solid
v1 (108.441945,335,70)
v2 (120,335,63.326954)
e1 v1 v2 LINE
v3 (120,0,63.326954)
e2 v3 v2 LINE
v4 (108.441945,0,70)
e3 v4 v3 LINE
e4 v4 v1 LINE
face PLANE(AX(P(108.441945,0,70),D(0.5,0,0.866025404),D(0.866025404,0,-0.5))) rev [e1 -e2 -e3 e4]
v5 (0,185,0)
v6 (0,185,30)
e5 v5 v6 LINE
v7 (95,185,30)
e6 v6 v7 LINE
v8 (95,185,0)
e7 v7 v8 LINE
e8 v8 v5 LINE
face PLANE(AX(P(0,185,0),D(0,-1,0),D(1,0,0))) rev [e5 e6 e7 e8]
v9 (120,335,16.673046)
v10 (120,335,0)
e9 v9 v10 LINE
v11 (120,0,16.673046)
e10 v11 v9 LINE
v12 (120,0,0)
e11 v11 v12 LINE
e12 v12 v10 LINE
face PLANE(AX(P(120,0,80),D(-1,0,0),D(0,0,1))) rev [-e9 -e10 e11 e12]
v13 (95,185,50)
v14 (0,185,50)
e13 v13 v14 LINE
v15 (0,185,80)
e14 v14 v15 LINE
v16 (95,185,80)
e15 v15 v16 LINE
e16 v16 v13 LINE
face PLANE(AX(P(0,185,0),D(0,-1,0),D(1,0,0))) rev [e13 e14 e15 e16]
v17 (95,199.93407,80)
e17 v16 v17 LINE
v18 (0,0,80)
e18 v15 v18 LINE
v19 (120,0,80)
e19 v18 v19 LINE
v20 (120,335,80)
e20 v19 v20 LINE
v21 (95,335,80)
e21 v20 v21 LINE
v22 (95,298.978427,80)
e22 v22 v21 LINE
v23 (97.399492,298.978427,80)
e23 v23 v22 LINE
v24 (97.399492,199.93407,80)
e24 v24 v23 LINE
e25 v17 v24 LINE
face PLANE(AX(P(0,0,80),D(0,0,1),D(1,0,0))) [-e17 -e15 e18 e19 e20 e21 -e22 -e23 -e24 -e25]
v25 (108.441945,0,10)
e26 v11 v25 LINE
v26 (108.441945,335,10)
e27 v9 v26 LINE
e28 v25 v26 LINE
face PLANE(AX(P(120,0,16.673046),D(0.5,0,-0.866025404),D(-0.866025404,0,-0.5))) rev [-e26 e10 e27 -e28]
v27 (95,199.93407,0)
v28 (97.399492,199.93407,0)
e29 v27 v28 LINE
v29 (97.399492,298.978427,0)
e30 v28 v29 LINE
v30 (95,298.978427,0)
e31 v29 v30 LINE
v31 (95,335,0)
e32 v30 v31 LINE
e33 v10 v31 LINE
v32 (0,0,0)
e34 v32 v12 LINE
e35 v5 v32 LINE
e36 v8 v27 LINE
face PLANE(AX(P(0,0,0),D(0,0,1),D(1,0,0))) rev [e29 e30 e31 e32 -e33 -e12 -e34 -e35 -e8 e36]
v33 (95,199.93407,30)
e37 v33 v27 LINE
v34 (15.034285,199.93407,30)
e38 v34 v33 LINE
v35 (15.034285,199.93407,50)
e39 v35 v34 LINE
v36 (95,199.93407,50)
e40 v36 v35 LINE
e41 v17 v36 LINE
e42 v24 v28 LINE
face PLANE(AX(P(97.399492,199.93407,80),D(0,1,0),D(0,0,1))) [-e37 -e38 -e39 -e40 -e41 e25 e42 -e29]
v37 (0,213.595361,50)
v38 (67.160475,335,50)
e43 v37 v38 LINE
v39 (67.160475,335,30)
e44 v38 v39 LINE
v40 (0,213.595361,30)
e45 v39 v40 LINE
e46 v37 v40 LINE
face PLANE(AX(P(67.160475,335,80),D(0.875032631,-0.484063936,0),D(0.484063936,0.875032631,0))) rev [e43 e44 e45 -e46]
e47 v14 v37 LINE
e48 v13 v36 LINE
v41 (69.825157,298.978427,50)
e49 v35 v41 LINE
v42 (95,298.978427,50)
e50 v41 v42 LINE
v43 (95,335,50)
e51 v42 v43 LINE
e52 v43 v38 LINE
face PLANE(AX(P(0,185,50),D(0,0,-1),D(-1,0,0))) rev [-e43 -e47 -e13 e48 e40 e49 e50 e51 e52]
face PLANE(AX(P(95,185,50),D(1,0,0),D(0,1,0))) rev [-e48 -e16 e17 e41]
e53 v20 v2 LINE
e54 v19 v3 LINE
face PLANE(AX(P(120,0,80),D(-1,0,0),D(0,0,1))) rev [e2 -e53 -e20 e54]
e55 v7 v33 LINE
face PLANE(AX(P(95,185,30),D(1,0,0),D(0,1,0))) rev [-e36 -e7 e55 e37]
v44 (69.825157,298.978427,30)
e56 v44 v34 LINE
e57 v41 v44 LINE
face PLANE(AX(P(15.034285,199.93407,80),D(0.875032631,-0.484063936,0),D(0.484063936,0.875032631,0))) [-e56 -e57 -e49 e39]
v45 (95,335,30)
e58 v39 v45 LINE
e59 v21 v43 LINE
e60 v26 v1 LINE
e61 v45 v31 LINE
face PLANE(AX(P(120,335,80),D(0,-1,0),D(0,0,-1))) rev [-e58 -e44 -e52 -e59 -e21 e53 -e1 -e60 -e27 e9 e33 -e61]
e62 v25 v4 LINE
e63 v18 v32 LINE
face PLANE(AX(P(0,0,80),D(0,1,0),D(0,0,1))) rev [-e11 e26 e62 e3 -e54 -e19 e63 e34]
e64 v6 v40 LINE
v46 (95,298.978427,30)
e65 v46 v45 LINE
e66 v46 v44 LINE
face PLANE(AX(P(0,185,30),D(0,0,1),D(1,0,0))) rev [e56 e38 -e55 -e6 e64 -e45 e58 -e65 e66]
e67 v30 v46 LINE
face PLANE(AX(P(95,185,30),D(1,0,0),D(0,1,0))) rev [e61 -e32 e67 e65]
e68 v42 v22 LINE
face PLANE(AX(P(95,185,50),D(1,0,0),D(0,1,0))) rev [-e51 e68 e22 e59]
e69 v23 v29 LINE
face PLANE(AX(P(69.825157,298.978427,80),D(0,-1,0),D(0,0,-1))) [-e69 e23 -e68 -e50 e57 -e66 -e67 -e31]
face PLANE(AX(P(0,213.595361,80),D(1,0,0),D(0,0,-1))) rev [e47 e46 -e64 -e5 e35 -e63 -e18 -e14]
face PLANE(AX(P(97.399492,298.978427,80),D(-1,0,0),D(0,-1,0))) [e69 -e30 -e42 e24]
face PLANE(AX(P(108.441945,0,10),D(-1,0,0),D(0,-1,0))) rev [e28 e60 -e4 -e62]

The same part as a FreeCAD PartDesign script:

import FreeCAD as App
import Part
import Sketcher

V = App.Vector
Q = App.Units.Quantity

doc = App.newDocument("Part")
body = doc.addObject("PartDesign::Body", "Body")

# Sketch on XY plane
sketch1 = body.newObject("Sketcher::SketchObject", "Sketch")
sketch1.AttachmentSupport = (doc.getObject("XY_Plane"), [""])
sketch1.MapMode = "FlatFace"
sketch1.addGeometry([
    Part.LineSegment(V(0, 0, 0), V(120, 0, 0)),  # 0
    Part.LineSegment(V(120, 0, 0), V(120, 335, 0)),  # 1
    Part.LineSegment(V(120, 335, 0), V(67.160475, 335, 0)),  # 2
    Part.LineSegment(V(67.160475, 335, 0), V(0, 213.595361, 0)),  # 3
    Part.LineSegment(V(0, 213.595361, 0), V(0, 0, 0)),  # 4
    Part.LineSegment(V(97.399492, 199.93407, 0), V(15.034285, 199.93407, 0)),  # 5
    Part.LineSegment(V(15.034285, 199.93407, 0), V(69.825157, 298.978427, 0)),  # 6
    Part.LineSegment(V(69.825157, 298.978427, 0), V(97.399492, 298.978427, 0)),  # 7
    Part.LineSegment(V(97.399492, 298.978427, 0), V(97.399492, 199.93407, 0)),  # 8
], False)
sketch1.addConstraint([
    Sketcher.Constraint("Coincident", 0, 2, 1, 1),
    Sketcher.Constraint("Coincident", 1, 2, 2, 1),
    Sketcher.Constraint("Coincident", 2, 2, 3, 1),
    Sketcher.Constraint("Coincident", 3, 2, 4, 1),
    Sketcher.Constraint("Coincident", 4, 2, 0, 1),
    Sketcher.Constraint("Coincident", 5, 2, 6, 1),
    Sketcher.Constraint("Coincident", 6, 2, 7, 1),
    Sketcher.Constraint("Coincident", 7, 2, 8, 1),
    Sketcher.Constraint("Coincident", 8, 2, 5, 1),
    Sketcher.Constraint("Horizontal", 0),
    Sketcher.Constraint("Vertical", 1),
    Sketcher.Constraint("Horizontal", 2),
    Sketcher.Constraint("Vertical", 4),
    Sketcher.Constraint("Horizontal", 5),
    Sketcher.Constraint("Horizontal", 7),
    Sketcher.Constraint("Vertical", 8),
    Sketcher.Constraint("Coincident", 4, 2, -1, 1),
    Sketcher.Constraint("Parallel", 3, 6),
    Sketcher.Constraint("DistanceX", 0, 1, 0, 2, Q("120 mm")),
    Sketcher.Constraint("DistanceY", 1, 1, 1, 2, Q("335 mm")),
    Sketcher.Constraint("DistanceY", 4, 2, 4, 1, Q("213.595361 mm")),
    Sketcher.Constraint("Distance", 6, Q("113.18933 mm")),
    Sketcher.Constraint("DistanceX", 2, 2, 2, 1, Q("52.839525 mm")),
    Sketcher.Constraint("DistanceX", 5, 2, 5, 1, Q("82.365207 mm")),
    Sketcher.Constraint("DistanceY", -1, 1, 5, 2, Q("199.93407 mm")),
    Sketcher.Constraint("DistanceX", -1, 1, 7, 2, Q("97.399492 mm")),
])
pad1 = body.newObject("PartDesign::Pad", "Pad")
pad1.Profile = sketch1
pad1.Length = 80

# Sketch on XZ plane
sketch2 = body.newObject("Sketcher::SketchObject", "Sketch001")
sketch2.AttachmentSupport = (doc.getObject("XZ_Plane"), [""])
sketch2.MapMode = "FlatFace"
sketch2.AttachmentOffset = App.Placement(V(0, 0, -335), App.Rotation())
sketch2.addGeometry([
    Part.LineSegment(V(0, 0, 0), V(0, 30, 0)),  # 0
    Part.LineSegment(V(0, 30, 0), V(95, 30, 0)),  # 1
    Part.LineSegment(V(95, 30, 0), V(95, 0, 0)),  # 2
    Part.LineSegment(V(95, 0, 0), V(0, 0, 0)),  # 3
    Part.LineSegment(V(0, 50, 0), V(0, 80, 0)),  # 4
    Part.LineSegment(V(0, 80, 0), V(95, 80, 0)),  # 5
    Part.LineSegment(V(95, 80, 0), V(95, 50, 0)),  # 6
    Part.LineSegment(V(95, 50, 0), V(0, 50, 0)),  # 7
], False)
sketch2.addConstraint([
    Sketcher.Constraint("Coincident", 0, 2, 1, 1),
    Sketcher.Constraint("Coincident", 1, 2, 2, 1),
    Sketcher.Constraint("Coincident", 2, 2, 3, 1),
    Sketcher.Constraint("Coincident", 3, 2, 0, 1),
    Sketcher.Constraint("Coincident", 4, 2, 5, 1),
    Sketcher.Constraint("Coincident", 5, 2, 6, 1),
    Sketcher.Constraint("Coincident", 6, 2, 7, 1),
    Sketcher.Constraint("Coincident", 7, 2, 4, 1),
    Sketcher.Constraint("Vertical", 0),
    Sketcher.Constraint("Horizontal", 1),
    Sketcher.Constraint("Vertical", 2),
    Sketcher.Constraint("Horizontal", 3),
    Sketcher.Constraint("Vertical", 4),
    Sketcher.Constraint("Horizontal", 5),
    Sketcher.Constraint("Vertical", 6),
    Sketcher.Constraint("Horizontal", 7),
    Sketcher.Constraint("Coincident", 3, 2, -1, 1),
    Sketcher.Constraint("PointOnObject", 4, 2, -2),
    Sketcher.Constraint("Vertical", 2, 2, 5, 2),
    Sketcher.Constraint("Equal", 2, 4),
    Sketcher.Constraint("DistanceX", 1, 1, 1, 2, Q("95 mm")),
    Sketcher.Constraint("DistanceY", 0, 1, 0, 2, Q("30 mm")),
    Sketcher.Constraint("DistanceY", -1, 1, 4, 2, Q("80 mm")),
])
pocket1 = body.newObject("PartDesign::Pocket", "Pocket")
pocket1.Profile = sketch2
pocket1.Length = 150
pocket1.Reversed = True

# Sketch on XZ plane
sketch3 = body.newObject("Sketcher::SketchObject", "Sketch002")
sketch3.AttachmentSupport = (doc.getObject("XZ_Plane"), [""])
sketch3.MapMode = "FlatFace"
sketch3.AttachmentOffset = App.Placement(V(0, 0, -335), App.Rotation())
sketch3.addGeometry([
    Part.LineSegment(V(108.441945, 10, 0), V(108.441945, 70, 0)),
    Part.LineSegment(V(108.441945, 70, 0), V(120, 63.326954, 0)),
    Part.LineSegment(V(120, 63.326954, 0), V(120, 16.673046, 0)),
    Part.LineSegment(V(120, 16.673046, 0), V(108.441945, 10, 0)),
], False)
sketch3.addConstraint([
    Sketcher.Constraint("Coincident", 0, 2, 1, 1),
    Sketcher.Constraint("Coincident", 1, 2, 2, 1),
    Sketcher.Constraint("Coincident", 2, 2, 3, 1),
    Sketcher.Constraint("Coincident", 3, 2, 0, 1),
    Sketcher.Constraint("Vertical", 0),
    Sketcher.Constraint("Vertical", 2),
    Sketcher.Constraint("Equal", 1, 3),
    Sketcher.Constraint("DistanceY", 0, 1, 0, 2, Q("60 mm")),
    Sketcher.Constraint("Angle", 1, Q("-30 deg")),
    Sketcher.Constraint("DistanceY", -1, 1, 0, 2, Q("70 mm")),
    Sketcher.Constraint("DistanceX", -1, 1, 1, 2, Q("120 mm")),
    Sketcher.Constraint("DistanceY", 2, 2, 2, 1, Q("46.653908 mm")),
])
pocket2 = body.newObject("PartDesign::Pocket", "Pocket001")
pocket2.Profile = sketch3
pocket2.Type = "ThroughAll"
pocket2.Reversed = True

doc.recompute()
